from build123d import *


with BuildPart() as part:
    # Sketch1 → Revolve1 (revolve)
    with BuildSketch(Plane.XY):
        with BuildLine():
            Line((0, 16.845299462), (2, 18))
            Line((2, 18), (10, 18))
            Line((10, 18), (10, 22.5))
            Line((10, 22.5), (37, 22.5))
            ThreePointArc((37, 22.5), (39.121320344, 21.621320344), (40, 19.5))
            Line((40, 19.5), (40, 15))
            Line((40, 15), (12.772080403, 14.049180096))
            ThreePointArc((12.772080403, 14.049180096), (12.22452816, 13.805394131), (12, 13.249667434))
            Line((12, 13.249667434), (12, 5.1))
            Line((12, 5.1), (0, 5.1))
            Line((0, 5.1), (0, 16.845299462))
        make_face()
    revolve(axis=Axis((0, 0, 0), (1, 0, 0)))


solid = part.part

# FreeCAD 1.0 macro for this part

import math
import FreeCAD as App
import Part
import Sketcher

V = App.Vector
Q = App.Units.Quantity

doc = App.newDocument("Part")
body = doc.addObject("PartDesign::Body", "Body")

# Sketch on XY plane
sketch1 = body.newObject("Sketcher::SketchObject", "Sketch")
sketch1.AttachmentSupport = (doc.getObject("XY_Plane"), [""])
sketch1.MapMode = "FlatFace"
sketch1.addGeometry(Part.LineSegment(V(2, 18, 0), V(0, 16.8, 0)), False)
sketch1.addGeometry(Part.LineSegment(V(0, 16.8, 0), V(0, 5.1, 0)), False)
sketch1.addGeometry(Part.LineSegment(V(0, 5.1, 0), V(12, 5.1, 0)), False)
sketch1.addGeometry(Part.LineSegment(V(12, 5.1, 0), V(12, 13.2, 0)), False)
sketch1.addGeometry(Part.ArcOfCircle(Part.Circle(V(12.8, 13.2, 0), V(0, 0, 1), 0.8), math.radians(92), math.radians(180)), False)
sketch1.addGeometry(Part.LineSegment(V(12.8, 14, 0), V(40, 15, 0)), False)
sketch1.addGeometry(Part.LineSegment(V(40, 15, 0), V(40, 19.5, 0)), False)
sketch1.addGeometry(Part.ArcOfCircle(Part.Circle(V(37, 19.5, 0), V(0, 0, 1), 3), math.radians(0), math.radians(90)), False)
sketch1.addGeometry(Part.LineSegment(V(37, 22.5, 0), V(10, 22.5, 0)), False)
sketch1.addGeometry(Part.LineSegment(V(10, 22.5, 0), V(10, 18, 0)), False)
sketch1.addGeometry(Part.LineSegment(V(10, 18, 0), V(2, 18, 0)), False)
sketch1.addConstraint(Sketcher.Constraint("Coincident", 0, 2, 1, 1))
sketch1.addConstraint(Sketcher.Constraint("Coincident", 1, 2, 2, 1))
sketch1.addConstraint(Sketcher.Constraint("Coincident", 2, 2, 3, 1))
sketch1.addConstraint(Sketcher.Constraint("Tangent", 3, 2, 4, 2))
sketch1.addConstraint(Sketcher.Constraint("Tangent", 4, 1, 5, 1))
sketch1.addConstraint(Sketcher.Constraint("Coincident", 5, 2, 6, 1))
sketch1.addConstraint(Sketcher.Constraint("Tangent", 6, 2, 7, 1))
sketch1.addConstraint(Sketcher.Constraint("Tangent", 7, 2, 8, 1))
sketch1.addConstraint(Sketcher.Constraint("Coincident", 8, 2, 9, 1))
sketch1.addConstraint(Sketcher.Constraint("Coincident", 9, 2, 10, 1))
sketch1.addConstraint(Sketcher.Constraint("Coincident", 10, 2, 0, 1))
sketch1.addConstraint(Sketcher.Constraint("Vertical", 1))
sketch1.addConstraint(Sketcher.Constraint("Horizontal", 2))
sketch1.addConstraint(Sketcher.Constraint("Vertical", 3))
sketch1.addConstraint(Sketcher.Constraint("Vertical", 6))
sketch1.addConstraint(Sketcher.Constraint("Horizontal", 8))
sketch1.addConstraint(Sketcher.Constraint("Vertical", 9))
sketch1.addConstraint(Sketcher.Constraint("Horizontal", 10))
sketch1.addConstraint(Sketcher.Constraint("PointOnObject", 0, 2, -2))
sketch1.addConstraint(Sketcher.Constraint("Equal", 6, 9))
sketch1.addConstraint(Sketcher.Constraint("Radius", 7, Q("3 mm")))
sketch1.addConstraint(Sketcher.Constraint("Radius", 4, Q("0.8 mm")))
sketch1.addConstraint(Sketcher.Constraint("DistanceX", 2, 1, 2, 2, Q("12 mm")))
sketch1.addConstraint(Sketcher.Constraint("DistanceX", 8, 2, 8, 1, Q("27 mm")))
sketch1.addConstraint(Sketcher.Constraint("DistanceX", 10, 2, 10, 1, Q("8 mm")))
sketch1.addConstraint(Sketcher.Constraint("Angle", 0, Q("-150 deg")))
sketch1.addConstraint(Sketcher.Constraint("Angle", 5, Q("2 deg")))
sketch1.addConstraint(Sketcher.Constraint("DistanceY", 6, 1, 6, 2, Q("4.5 mm")))
sketch1.addConstraint(Sketcher.Constraint("DistanceX", -1, 1, 7, 3, Q("37 mm")))
sketch1.addConstraint(Sketcher.Constraint("DistanceY", -1, 1, 5, 2, Q("15 mm")))
sketch1.addConstraint(Sketcher.Constraint("DistanceY", -1, 1, 1, 2, Q("5.1 mm")))
revolution = body.newObject("PartDesign::Revolution", "Revolution")
revolution.Profile = sketch1
revolution.ReferenceAxis = (sketch1, ["H_Axis"])
revolution.Angle = 360

doc.recompute()
